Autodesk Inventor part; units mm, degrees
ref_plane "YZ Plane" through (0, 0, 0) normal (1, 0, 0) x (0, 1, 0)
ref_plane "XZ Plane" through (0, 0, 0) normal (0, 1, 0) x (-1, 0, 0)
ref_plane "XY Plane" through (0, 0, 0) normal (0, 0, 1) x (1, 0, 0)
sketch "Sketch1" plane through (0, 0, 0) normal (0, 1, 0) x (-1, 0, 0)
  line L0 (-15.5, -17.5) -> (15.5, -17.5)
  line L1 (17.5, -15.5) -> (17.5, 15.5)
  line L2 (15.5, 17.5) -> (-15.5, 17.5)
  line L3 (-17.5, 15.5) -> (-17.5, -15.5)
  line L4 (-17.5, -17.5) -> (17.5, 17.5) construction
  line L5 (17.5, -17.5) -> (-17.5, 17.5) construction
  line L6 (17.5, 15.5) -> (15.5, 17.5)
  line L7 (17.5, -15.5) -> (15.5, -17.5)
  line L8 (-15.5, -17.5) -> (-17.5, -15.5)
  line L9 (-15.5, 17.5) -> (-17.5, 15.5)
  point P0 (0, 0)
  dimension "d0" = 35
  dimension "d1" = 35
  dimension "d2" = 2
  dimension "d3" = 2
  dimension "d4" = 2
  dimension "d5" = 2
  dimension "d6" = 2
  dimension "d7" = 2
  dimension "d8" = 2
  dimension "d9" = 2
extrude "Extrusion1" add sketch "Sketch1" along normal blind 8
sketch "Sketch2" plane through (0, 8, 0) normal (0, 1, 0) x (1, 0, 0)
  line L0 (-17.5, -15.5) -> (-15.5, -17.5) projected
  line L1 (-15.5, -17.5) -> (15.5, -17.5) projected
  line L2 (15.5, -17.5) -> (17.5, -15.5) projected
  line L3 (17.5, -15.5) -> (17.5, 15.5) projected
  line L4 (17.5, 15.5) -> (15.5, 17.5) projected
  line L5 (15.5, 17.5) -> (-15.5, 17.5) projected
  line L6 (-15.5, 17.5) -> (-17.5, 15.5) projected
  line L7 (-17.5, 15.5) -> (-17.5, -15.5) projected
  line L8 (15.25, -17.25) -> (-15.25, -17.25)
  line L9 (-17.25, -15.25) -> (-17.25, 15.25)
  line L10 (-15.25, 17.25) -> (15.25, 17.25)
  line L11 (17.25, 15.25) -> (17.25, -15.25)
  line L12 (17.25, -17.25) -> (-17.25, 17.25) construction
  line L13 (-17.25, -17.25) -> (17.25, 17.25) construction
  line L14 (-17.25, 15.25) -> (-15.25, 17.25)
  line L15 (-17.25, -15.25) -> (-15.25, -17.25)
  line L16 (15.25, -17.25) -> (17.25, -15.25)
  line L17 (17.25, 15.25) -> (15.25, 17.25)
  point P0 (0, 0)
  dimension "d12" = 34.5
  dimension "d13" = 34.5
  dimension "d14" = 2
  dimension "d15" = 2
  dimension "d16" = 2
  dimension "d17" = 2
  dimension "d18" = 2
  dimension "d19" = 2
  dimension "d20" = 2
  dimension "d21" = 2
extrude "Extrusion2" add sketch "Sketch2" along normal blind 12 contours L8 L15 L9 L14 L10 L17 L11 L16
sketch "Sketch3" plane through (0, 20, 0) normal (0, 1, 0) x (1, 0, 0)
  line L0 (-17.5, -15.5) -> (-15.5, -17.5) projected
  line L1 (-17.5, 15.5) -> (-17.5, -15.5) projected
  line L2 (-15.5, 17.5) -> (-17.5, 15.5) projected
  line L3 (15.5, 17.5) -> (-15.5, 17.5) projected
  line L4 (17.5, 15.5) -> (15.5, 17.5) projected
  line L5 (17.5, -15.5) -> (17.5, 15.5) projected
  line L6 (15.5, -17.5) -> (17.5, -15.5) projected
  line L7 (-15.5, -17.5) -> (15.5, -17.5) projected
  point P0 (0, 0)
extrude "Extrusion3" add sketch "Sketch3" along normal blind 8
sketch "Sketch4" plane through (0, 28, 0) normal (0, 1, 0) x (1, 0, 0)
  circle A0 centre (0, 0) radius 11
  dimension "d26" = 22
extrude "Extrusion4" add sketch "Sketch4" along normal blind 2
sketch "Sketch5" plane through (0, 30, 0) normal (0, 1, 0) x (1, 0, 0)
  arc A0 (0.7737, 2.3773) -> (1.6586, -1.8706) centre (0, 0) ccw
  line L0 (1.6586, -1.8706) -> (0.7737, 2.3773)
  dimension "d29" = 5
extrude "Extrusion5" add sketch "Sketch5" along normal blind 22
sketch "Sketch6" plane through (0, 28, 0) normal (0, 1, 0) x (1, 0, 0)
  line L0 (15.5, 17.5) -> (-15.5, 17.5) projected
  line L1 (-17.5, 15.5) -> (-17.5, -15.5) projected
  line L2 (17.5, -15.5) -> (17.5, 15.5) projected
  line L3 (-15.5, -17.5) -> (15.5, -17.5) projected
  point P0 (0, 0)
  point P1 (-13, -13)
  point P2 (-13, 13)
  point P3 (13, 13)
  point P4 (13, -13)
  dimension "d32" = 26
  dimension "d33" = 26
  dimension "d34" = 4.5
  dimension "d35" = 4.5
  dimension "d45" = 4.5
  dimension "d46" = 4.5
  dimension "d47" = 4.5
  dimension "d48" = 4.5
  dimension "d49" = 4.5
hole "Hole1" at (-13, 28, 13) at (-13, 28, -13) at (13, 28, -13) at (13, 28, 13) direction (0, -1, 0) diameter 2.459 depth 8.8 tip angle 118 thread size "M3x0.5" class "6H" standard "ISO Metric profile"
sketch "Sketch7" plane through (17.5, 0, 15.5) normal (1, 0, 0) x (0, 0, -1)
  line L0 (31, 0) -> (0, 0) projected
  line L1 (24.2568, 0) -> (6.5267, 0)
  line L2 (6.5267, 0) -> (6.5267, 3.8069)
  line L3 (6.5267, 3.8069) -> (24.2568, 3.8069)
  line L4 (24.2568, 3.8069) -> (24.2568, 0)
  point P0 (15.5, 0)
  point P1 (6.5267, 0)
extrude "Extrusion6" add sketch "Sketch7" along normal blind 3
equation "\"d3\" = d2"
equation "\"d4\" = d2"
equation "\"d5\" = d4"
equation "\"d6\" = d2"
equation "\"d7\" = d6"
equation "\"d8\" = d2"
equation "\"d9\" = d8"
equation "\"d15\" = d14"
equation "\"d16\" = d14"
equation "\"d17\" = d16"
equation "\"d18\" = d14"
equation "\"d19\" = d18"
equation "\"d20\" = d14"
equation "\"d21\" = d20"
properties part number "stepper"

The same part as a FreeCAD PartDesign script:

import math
import FreeCAD as App
import Part
import Sketcher

doc = App.newDocument("Part")
body = doc.addObject("PartDesign::Body", "Body")

# Sketch on XZ plane
sketch1 = body.newObject("Sketcher::SketchObject", "Sketch")
sketch1.AttachmentSupport = (doc.getObject("XZ_Plane"), [""])
sketch1.MapMode = "FlatFace"
sketch1.addGeometry([
    Part.LineSegment(App.Vector(17.5, -15.5, 0), App.Vector(15.5, -17.5, 0)),  # 0
    Part.LineSegment(App.Vector(15.5, -17.5, 0), App.Vector(-15.5, -17.5, 0)),  # 1
    Part.LineSegment(App.Vector(-15.5, -17.5, 0), App.Vector(-17.5, -15.5, 0)),  # 2
    Part.LineSegment(App.Vector(-17.5, -15.5, 0), App.Vector(-17.5, 15.5, 0)),  # 3
    Part.LineSegment(App.Vector(-17.5, 15.5, 0), App.Vector(-15.5, 17.5, 0)),  # 4
    Part.LineSegment(App.Vector(-15.5, 17.5, 0), App.Vector(15.5, 17.5, 0)),  # 5
    Part.LineSegment(App.Vector(15.5, 17.5, 0), App.Vector(17.5, 15.5, 0)),  # 6
    Part.LineSegment(App.Vector(17.5, 15.5, 0), App.Vector(17.5, -15.5, 0)),  # 7
], False)
sketch1.addConstraint([
    Sketcher.Constraint("Coincident", 0, 2, 1, 1),
    Sketcher.Constraint("Coincident", 1, 2, 2, 1),
    Sketcher.Constraint("Coincident", 2, 2, 3, 1),
    Sketcher.Constraint("Coincident", 3, 2, 4, 1),
    Sketcher.Constraint("Coincident", 4, 2, 5, 1),
    Sketcher.Constraint("Coincident", 5, 2, 6, 1),
    Sketcher.Constraint("Coincident", 6, 2, 7, 1),
    Sketcher.Constraint("Coincident", 7, 2, 0, 1),
    Sketcher.Constraint("Horizontal", 1),
    Sketcher.Constraint("Vertical", 3),
    Sketcher.Constraint("Horizontal", 5),
    Sketcher.Constraint("Vertical", 7),
    Sketcher.Constraint("Symmetric", 0, 2, 4, 2, -1, 1),
    Sketcher.Constraint("Symmetric", 2, 2, 6, 2, -1, 1),
    Sketcher.Constraint("Perpendicular", 0, 2),
    Sketcher.Constraint("Perpendicular", 2, 4),
    Sketcher.Constraint("Perpendicular", 4, 6),
    Sketcher.Constraint("Horizontal", 3, 2, 6, 2),
    Sketcher.Constraint("Vertical", 1, 2, 4, 2),
    Sketcher.Constraint("Equal", 5, 3),
    Sketcher.Constraint("DistanceX", 2, 2, 1, 2, 2.0),
    Sketcher.Constraint("DistanceY", 1, 2, 4, 2, 35.0),
])
pad1 = body.newObject("PartDesign::Pad", "Pad")
pad1.Profile = sketch1
pad1.Length = 8
pad1.Reversed = True

# Sketch on XZ plane
sketch2 = body.newObject("Sketcher::SketchObject", "Sketch001")
sketch2.AttachmentSupport = (doc.getObject("XZ_Plane"), [""])
sketch2.MapMode = "FlatFace"
sketch2.AttachmentOffset = App.Placement(App.Vector(0, 0, -8), App.Rotation())
sketch2.addGeometry([
    Part.LineSegment(App.Vector(-15.2, 17.2, 0), App.Vector(15.2, 17.2, 0)),  # 0
    Part.LineSegment(App.Vector(15.2, 17.2, 0), App.Vector(17.2, 15.2, 0)),  # 1
    Part.LineSegment(App.Vector(17.2, 15.2, 0), App.Vector(17.2, -15.2, 0)),  # 2
    Part.LineSegment(App.Vector(17.2, -15.2, 0), App.Vector(15.2, -17.2, 0)),  # 3
    Part.LineSegment(App.Vector(15.2, -17.2, 0), App.Vector(-15.2, -17.2, 0)),  # 4
    Part.LineSegment(App.Vector(-15.2, -17.2, 0), App.Vector(-17.2, -15.2, 0)),  # 5
    Part.LineSegment(App.Vector(-17.2, -15.2, 0), App.Vector(-17.2, 15.2, 0)),  # 6
    Part.LineSegment(App.Vector(-17.2, 15.2, 0), App.Vector(-15.2, 17.2, 0)),  # 7
], False)
sketch2.addConstraint([
    Sketcher.Constraint("Coincident", 0, 2, 1, 1),
    Sketcher.Constraint("Coincident", 1, 2, 2, 1),
    Sketcher.Constraint("Coincident", 2, 2, 3, 1),
    Sketcher.Constraint("Coincident", 3, 2, 4, 1),
    Sketcher.Constraint("Coincident", 4, 2, 5, 1),
    Sketcher.Constraint("Coincident", 5, 2, 6, 1),
    Sketcher.Constraint("Coincident", 6, 2, 7, 1),
    Sketcher.Constraint("Coincident", 7, 2, 0, 1),
    Sketcher.Constraint("Horizontal", 0),
    Sketcher.Constraint("Vertical", 2),
    Sketcher.Constraint("Horizontal", 4),
    Sketcher.Constraint("Vertical", 6),
    Sketcher.Constraint("Symmetric", 0, 2, 4, 2, -1, 1),
    Sketcher.Constraint("Symmetric", 1, 2, 5, 2, -1, 1),
    Sketcher.Constraint("Perpendicular", 1, 3),
    Sketcher.Constraint("Perpendicular", 5, 7),
    Sketcher.Constraint("Horizontal", 2, 2, 5, 2),
    Sketcher.Constraint("Horizontal", 1, 2, 6, 2),
    Sketcher.Constraint("Vertical", 0, 2, 3, 2),
    Sketcher.Constraint("Equal", 4, 2),
    Sketcher.Constraint("DistanceX", 0, 2, 1, 2, 2.0),
    Sketcher.Constraint("DistanceY", 3, 2, 0, 2, 34.5),
])
pad2 = body.newObject("PartDesign::Pad", "Pad001")
pad2.Profile = sketch2
pad2.Length = 12
pad2.Reversed = True

# Sketch on XZ plane
sketch3 = body.newObject("Sketcher::SketchObject", "Sketch002")
sketch3.AttachmentSupport = (doc.getObject("XZ_Plane"), [""])
sketch3.MapMode = "FlatFace"
sketch3.AttachmentOffset = App.Placement(App.Vector(0, 0, -20), App.Rotation())
sketch3.addGeometry([
    Part.LineSegment(App.Vector(-17.5, -15.5, 0), App.Vector(-17.5, 15.5, 0)),  # 0
    Part.LineSegment(App.Vector(-17.5, 15.5, 0), App.Vector(-15.5, 17.5, 0)),  # 1
    Part.LineSegment(App.Vector(-15.5, 17.5, 0), App.Vector(15.5, 17.5, 0)),  # 2
    Part.LineSegment(App.Vector(15.5, 17.5, 0), App.Vector(17.5, 15.5, 0)),  # 3
    Part.LineSegment(App.Vector(17.5, 15.5, 0), App.Vector(17.5, -15.5, 0)),  # 4
    Part.LineSegment(App.Vector(17.5, -15.5, 0), App.Vector(15.5, -17.5, 0)),  # 5
    Part.LineSegment(App.Vector(15.5, -17.5, 0), App.Vector(-15.5, -17.5, 0)),  # 6
    Part.LineSegment(App.Vector(-15.5, -17.5, 0), App.Vector(-17.5, -15.5, 0)),  # 7
], False)
sketch3.addConstraint([
    Sketcher.Constraint("Coincident", 0, 2, 1, 1),
    Sketcher.Constraint("Coincident", 1, 2, 2, 1),
    Sketcher.Constraint("Coincident", 2, 2, 3, 1),
    Sketcher.Constraint("Coincident", 3, 2, 4, 1),
    Sketcher.Constraint("Coincident", 4, 2, 5, 1),
    Sketcher.Constraint("Coincident", 5, 2, 6, 1),
    Sketcher.Constraint("Coincident", 6, 2, 7, 1),
    Sketcher.Constraint("Coincident", 7, 2, 0, 1),
    Sketcher.Constraint("Vertical", 0),
    Sketcher.Constraint("Horizontal", 2),
    Sketcher.Constraint("Vertical", 4),
    Sketcher.Constraint("Horizontal", 6),
    Sketcher.Constraint("Symmetric", 0, 2, 4, 2, -1, 1),
    Sketcher.Constraint("Symmetric", 1, 2, 5, 2, -1, 1),
    Sketcher.Constraint("Perpendicular", 1, 3),
    Sketcher.Constraint("Perpendicular", 5, 7),
    Sketcher.Constraint("Horizontal", 0, 2, 3, 2),
    Sketcher.Constraint("Horizontal", 4, 2, 7, 2),
    Sketcher.Constraint("Vertical", 2, 2, 5, 2),
    Sketcher.Constraint("Equal", 6, 0),
    Sketcher.Constraint("DistanceX", 2, 1, 2, 2, 31.0),
    Sketcher.Constraint("DistanceX", 0, 2, 1, 2, 2.0),
])
pad3 = body.newObject("PartDesign::Pad", "Pad002")
pad3.Profile = sketch3
pad3.Length = 8
pad3.Reversed = True

# Sketch on XZ plane
sketch4 = body.newObject("Sketcher::SketchObject", "Sketch003")
sketch4.AttachmentSupport = (doc.getObject("XZ_Plane"), [""])
sketch4.MapMode = "FlatFace"
sketch4.AttachmentOffset = App.Placement(App.Vector(0, 0, -28), App.Rotation())
sketch4.addGeometry(Part.Circle(App.Vector(0, 0, 0), App.Vector(0, 0, 1), 11), False)
sketch4.addConstraint([
    Sketcher.Constraint("Coincident", 0, 3, -1, 1),
    Sketcher.Constraint("Diameter", 0, 22.0),
])
pad4 = body.newObject("PartDesign::Pad", "Pad003")
pad4.Profile = sketch4
pad4.Length = 2
pad4.Reversed = True

# Sketch on XZ plane
sketch5 = body.newObject("Sketcher::SketchObject", "Sketch004")
sketch5.AttachmentSupport = (doc.getObject("XZ_Plane"), [""])
sketch5.MapMode = "FlatFace"
sketch5.AttachmentOffset = App.Placement(App.Vector(0, 0, -30), App.Rotation())
sketch5.addGeometry([
    Part.LineSegment(App.Vector(1.7, 1.9, 0), App.Vector(0.8, -2.4, 0)),
    Part.ArcOfCircle(Part.Circle(App.Vector(0, 0, 0), App.Vector(0, 0, 1), 2.5), math.radians(48), math.radians(288)),
], False)
sketch5.addConstraint([
    Sketcher.Constraint("Coincident", 0, 1, 1, 1),
    Sketcher.Constraint("Coincident", 1, 2, 0, 2),
    Sketcher.Constraint("Coincident", 1, 3, -1, 1),
    Sketcher.Constraint("Radius", 1, 2.5),
    Sketcher.Constraint("Distance", 0, 4.339),
    Sketcher.Constraint("DistanceX", 1, 2, 0, 1, 0.885),
])
pad5 = body.newObject("PartDesign::Pad", "Pad004")
pad5.Profile = sketch5
pad5.Length = 22
pad5.Reversed = True

# Sketch on XZ plane
sketch6 = body.newObject("Sketcher::SketchObject", "Sketch005")
sketch6.AttachmentSupport = (doc.getObject("XZ_Plane"), [""])
sketch6.MapMode = "FlatFace"
sketch6.AttachmentOffset = App.Placement(App.Vector(0, 0, -28), App.Rotation())
sketch6.addGeometry([
    Part.Circle(App.Vector(-13, 13, 0), App.Vector(0, 0, 1), 1.2),
    Part.Circle(App.Vector(-13, -13, 0), App.Vector(0, 0, 1), 1.2),
    Part.Circle(App.Vector(13, -13, 0), App.Vector(0, 0, 1), 1.2),
    Part.Circle(App.Vector(13, 13, 0), App.Vector(0, 0, 1), 1.2),
], False)
sketch6.addConstraint([
    Sketcher.Constraint("Equal", 0, 1),
    Sketcher.Constraint("Equal", 1, 2),
    Sketcher.Constraint("Equal", 2, 3),
    Sketcher.Constraint("Symmetric", 0, 3, 2, 3, -1, 1),
    Sketcher.Constraint("Symmetric", 1, 3, 3, 3, -1, 1),
    Sketcher.Constraint("Symmetric", 1, 3, 2, 3, -2),
    Sketcher.Constraint("Diameter", 0, 2.459),
    Sketcher.Constraint("DistanceX", 0, 3, -1, 1, 13.0),
    Sketcher.Constraint("DistanceY", -1, 1, 0, 3, 13.0),
])
doc.recompute()
hole = body.newObject("PartDesign::Hole", "Hole")
hole.Profile = sketch6
hole.ThreadType = "None"
hole.Diameter = 2.459
hole.DepthType = "Dimension"
hole.Depth = 8.8
hole.DrillPoint = "Angled"
hole.DrillPointAngle = 118
hole.Reversed = True

# Sketch on YZ plane
sketch7 = body.newObject("Sketcher::SketchObject", "Sketch006")
sketch7.AttachmentSupport = (doc.getObject("YZ_Plane"), [""])
sketch7.MapMode = "FlatFace"
sketch7.AttachmentOffset = App.Placement(App.Vector(0, 0, 17.5), App.Rotation())
sketch7.addGeometry([
    Part.LineSegment(App.Vector(0, 9, 0), App.Vector(0, -8.8, 0)),
    Part.LineSegment(App.Vector(0, -8.8, 0), App.Vector(3.8, -8.8, 0)),
    Part.LineSegment(App.Vector(3.8, -8.8, 0), App.Vector(3.8, 9, 0)),
    Part.LineSegment(App.Vector(3.8, 9, 0), App.Vector(0, 9, 0)),
], False)
sketch7.addConstraint([
    Sketcher.Constraint("Coincident", 0, 2, 1, 1),
    Sketcher.Constraint("Coincident", 1, 2, 2, 1),
    Sketcher.Constraint("Coincident", 2, 2, 3, 1),
    Sketcher.Constraint("Coincident", 3, 2, 0, 1),
    Sketcher.Constraint("Vertical", 0),
    Sketcher.Constraint("Horizontal", 1),
    Sketcher.Constraint("Vertical", 2),
    Sketcher.Constraint("Horizontal", 3),
    Sketcher.Constraint("PointOnObject", 0, 2, -2),
    Sketcher.Constraint("DistanceY", 0, 2, 0, 1, 17.73),
    Sketcher.Constraint("DistanceX", 1, 1, 1, 2, 3.807),
    Sketcher.Constraint("DistanceY", 0, 2, -1, 1, 8.7568),
])
pad6 = body.newObject("PartDesign::Pad", "Pad005")
pad6.Profile = sketch7
pad6.Length = 3

doc.recompute()
